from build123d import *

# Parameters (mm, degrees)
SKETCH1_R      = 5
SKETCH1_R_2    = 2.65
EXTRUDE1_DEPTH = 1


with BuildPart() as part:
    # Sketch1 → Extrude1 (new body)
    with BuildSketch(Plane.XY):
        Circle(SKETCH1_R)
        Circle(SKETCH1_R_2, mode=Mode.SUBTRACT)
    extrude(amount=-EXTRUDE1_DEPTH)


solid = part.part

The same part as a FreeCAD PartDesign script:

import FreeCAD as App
import Part
import Sketcher

V = App.Vector

doc = App.newDocument("Part")
body = doc.addObject("PartDesign::Body", "Body")

# Sketch on XY plane
sketch1 = doc.addObject("Sketcher::SketchObject", "Sketch")
body.addObject(sketch1)
sketch1.AttachmentSupport = (doc.XY_Plane, [""])
sketch1.MapMode = "FlatFace"
sketch1.addGeometry([
    Part.Circle(V(0, 0, 0), V(0, 0, 1), 5),
    Part.Circle(V(0, 0, 0), V(0, 0, 1), 2.65),
], False)
sketch1.addConstraint([
    Sketcher.Constraint("Coincident", 0, 3, -1, 1),
    Sketcher.Constraint("Coincident", 1, 3, -1, 1),
    Sketcher.Constraint("Diameter", 0, 10.0),
    Sketcher.Constraint("Diameter", 1, 5.3),
])
pad1 = doc.addObject("PartDesign::Pad", "Pad")
body.addObject(pad1)
pad1.Profile = sketch1
pad1.Length = 1
pad1.Reversed = True

doc.recompute()
